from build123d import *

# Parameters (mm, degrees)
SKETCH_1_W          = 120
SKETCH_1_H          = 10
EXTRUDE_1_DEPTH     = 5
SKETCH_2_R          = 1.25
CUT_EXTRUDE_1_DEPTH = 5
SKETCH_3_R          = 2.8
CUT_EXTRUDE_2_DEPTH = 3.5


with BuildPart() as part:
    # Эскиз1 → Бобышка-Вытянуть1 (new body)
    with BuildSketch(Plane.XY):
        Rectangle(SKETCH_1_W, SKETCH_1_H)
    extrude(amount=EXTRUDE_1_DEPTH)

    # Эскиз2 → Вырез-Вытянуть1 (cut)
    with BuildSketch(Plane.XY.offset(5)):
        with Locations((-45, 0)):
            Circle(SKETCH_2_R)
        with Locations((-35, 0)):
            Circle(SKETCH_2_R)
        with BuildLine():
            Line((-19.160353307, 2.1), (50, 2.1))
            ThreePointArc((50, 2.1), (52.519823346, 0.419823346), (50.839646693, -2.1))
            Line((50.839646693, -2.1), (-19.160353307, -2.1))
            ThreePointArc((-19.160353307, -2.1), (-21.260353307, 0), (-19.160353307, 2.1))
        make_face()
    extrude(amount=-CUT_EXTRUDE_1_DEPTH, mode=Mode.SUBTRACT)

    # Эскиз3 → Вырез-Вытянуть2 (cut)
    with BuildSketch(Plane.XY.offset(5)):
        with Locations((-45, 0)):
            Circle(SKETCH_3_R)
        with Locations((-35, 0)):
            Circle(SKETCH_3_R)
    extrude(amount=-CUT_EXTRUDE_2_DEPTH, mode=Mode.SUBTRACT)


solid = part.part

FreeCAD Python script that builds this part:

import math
import FreeCAD as App
import Part
import Sketcher

doc = App.newDocument("Part")
body = doc.addObject("PartDesign::Body", "Body")

sketch1 = body.newObject("Sketcher::SketchObject", "Sketch")
sketch1.AttachmentSupport = (doc.getObject("XY_Plane"), [""])
sketch1.MapMode = "FlatFace"
sketch1.addGeometry([
    Part.LineSegment(App.Vector(-60, 5, 0), App.Vector(-60, -5, 0)),
    Part.LineSegment(App.Vector(-60, -5, 0), App.Vector(60, -5, 0)),
    Part.LineSegment(App.Vector(60, -5, 0), App.Vector(60, 5, 0)),
    Part.LineSegment(App.Vector(60, 5, 0), App.Vector(-60, 5, 0)),
], False)
sketch1.addConstraint([
    Sketcher.Constraint("Coincident", 0, 2, 1, 1),
    Sketcher.Constraint("Coincident", 1, 2, 2, 1),
    Sketcher.Constraint("Coincident", 2, 2, 3, 1),
    Sketcher.Constraint("Coincident", 3, 2, 0, 1),
    Sketcher.Constraint("Vertical", 0),
    Sketcher.Constraint("Horizontal", 1),
    Sketcher.Constraint("Vertical", 2),
    Sketcher.Constraint("Horizontal", 3),
    Sketcher.Constraint("Symmetric", 0, 2, 2, 2, -1, 1),
    Sketcher.Constraint("DistanceX", 1, 1, 1, 2, 120.0),
    Sketcher.Constraint("DistanceY", 0, 2, 0, 1, 10.0),
])
pad1 = body.newObject("PartDesign::Pad", "Pad")
pad1.Profile = sketch1
pad1.Length = 5

sketch2 = body.newObject("Sketcher::SketchObject", "Sketch001")
sketch2.AttachmentSupport = (doc.getObject("XY_Plane"), [""])
sketch2.MapMode = "FlatFace"
sketch2.AttachmentOffset = App.Placement(App.Vector(0, 0, 5), App.Rotation())
sketch2.addGeometry([
    Part.Circle(App.Vector(-45, 0, 0), App.Vector(0, 0, 1), 1.25),
    Part.Circle(App.Vector(-35, 0, 0), App.Vector(0, 0, 1), 1.25),
    Part.LineSegment(App.Vector(50, 2.1, 0), App.Vector(-19.160353, 2.1, 0)),
    Part.ArcOfCircle(Part.Circle(App.Vector(-19.160353, 0, 0), App.Vector(0, 0, 1), 2.1), math.radians(90), math.radians(270)),
    Part.LineSegment(App.Vector(-19.160353, -2.1, 0), App.Vector(50.839647, -2.1, 0)),
    Part.ArcOfCircle(Part.Circle(App.Vector(50.419823, 0, 0), App.Vector(0, 0, 1), 2.141554), math.radians(-78.694702), math.radians(101.305298)),
], False)
sketch2.addConstraint([
    Sketcher.Constraint("Tangent", 2, 2, 3, 1),
    Sketcher.Constraint("Tangent", 3, 2, 4, 1),
    Sketcher.Constraint("Coincident", 4, 2, 5, 1),
    Sketcher.Constraint("Coincident", 5, 2, 2, 1),
    Sketcher.Constraint("Horizontal", 2),
    Sketcher.Constraint("Horizontal", 4),
    Sketcher.Constraint("Equal", 0, 1),
    Sketcher.Constraint("PointOnObject", 0, 3, -1),
    Sketcher.Constraint("PointOnObject", 1, 3, -1),
    Sketcher.Constraint("PointOnObject", 3, 3, -1),
    Sketcher.Constraint("PointOnObject", 5, 3, -1),
    Sketcher.Constraint("Diameter", 0, 2.5),
    Sketcher.Constraint("Radius", 3, 2.1),
    Sketcher.Constraint("DistanceX", 4, 1, 4, 2, 70.0),
    Sketcher.Constraint("DistanceX", 0, 3, -1, 1, 45.0),
    Sketcher.Constraint("DistanceX", 1, 3, -1, 1, 35.0),
    Sketcher.Constraint("DistanceX", -1, 1, 5, 2, 50.0),
    Sketcher.Constraint("Radius", 5, 2.141554),
])
pocket1 = body.newObject("PartDesign::Pocket", "Pocket")
pocket1.Profile = sketch2
pocket1.Length = 5

sketch3 = body.newObject("Sketcher::SketchObject", "Sketch002")
sketch3.AttachmentSupport = (doc.getObject("XY_Plane"), [""])
sketch3.MapMode = "FlatFace"
sketch3.AttachmentOffset = App.Placement(App.Vector(0, 0, 5), App.Rotation())
sketch3.addGeometry([
    Part.Circle(App.Vector(-45, 0, 0), App.Vector(0, 0, 1), 2.8),
    Part.Circle(App.Vector(-35, 0, 0), App.Vector(0, 0, 1), 2.8),
], False)
sketch3.addConstraint([
    Sketcher.Constraint("Equal", 0, 1),
    Sketcher.Constraint("PointOnObject", 0, 3, -1),
    Sketcher.Constraint("PointOnObject", 1, 3, -1),
    Sketcher.Constraint("Diameter", 0, 5.6),
    Sketcher.Constraint("DistanceX", 0, 3, -1, 1, 45.0),
    Sketcher.Constraint("DistanceX", 1, 3, -1, 1, 35.0),
])
pocket2 = body.newObject("PartDesign::Pocket", "Pocket001")
pocket2.Profile = sketch3
pocket2.Length = 3.5

doc.recompute()
